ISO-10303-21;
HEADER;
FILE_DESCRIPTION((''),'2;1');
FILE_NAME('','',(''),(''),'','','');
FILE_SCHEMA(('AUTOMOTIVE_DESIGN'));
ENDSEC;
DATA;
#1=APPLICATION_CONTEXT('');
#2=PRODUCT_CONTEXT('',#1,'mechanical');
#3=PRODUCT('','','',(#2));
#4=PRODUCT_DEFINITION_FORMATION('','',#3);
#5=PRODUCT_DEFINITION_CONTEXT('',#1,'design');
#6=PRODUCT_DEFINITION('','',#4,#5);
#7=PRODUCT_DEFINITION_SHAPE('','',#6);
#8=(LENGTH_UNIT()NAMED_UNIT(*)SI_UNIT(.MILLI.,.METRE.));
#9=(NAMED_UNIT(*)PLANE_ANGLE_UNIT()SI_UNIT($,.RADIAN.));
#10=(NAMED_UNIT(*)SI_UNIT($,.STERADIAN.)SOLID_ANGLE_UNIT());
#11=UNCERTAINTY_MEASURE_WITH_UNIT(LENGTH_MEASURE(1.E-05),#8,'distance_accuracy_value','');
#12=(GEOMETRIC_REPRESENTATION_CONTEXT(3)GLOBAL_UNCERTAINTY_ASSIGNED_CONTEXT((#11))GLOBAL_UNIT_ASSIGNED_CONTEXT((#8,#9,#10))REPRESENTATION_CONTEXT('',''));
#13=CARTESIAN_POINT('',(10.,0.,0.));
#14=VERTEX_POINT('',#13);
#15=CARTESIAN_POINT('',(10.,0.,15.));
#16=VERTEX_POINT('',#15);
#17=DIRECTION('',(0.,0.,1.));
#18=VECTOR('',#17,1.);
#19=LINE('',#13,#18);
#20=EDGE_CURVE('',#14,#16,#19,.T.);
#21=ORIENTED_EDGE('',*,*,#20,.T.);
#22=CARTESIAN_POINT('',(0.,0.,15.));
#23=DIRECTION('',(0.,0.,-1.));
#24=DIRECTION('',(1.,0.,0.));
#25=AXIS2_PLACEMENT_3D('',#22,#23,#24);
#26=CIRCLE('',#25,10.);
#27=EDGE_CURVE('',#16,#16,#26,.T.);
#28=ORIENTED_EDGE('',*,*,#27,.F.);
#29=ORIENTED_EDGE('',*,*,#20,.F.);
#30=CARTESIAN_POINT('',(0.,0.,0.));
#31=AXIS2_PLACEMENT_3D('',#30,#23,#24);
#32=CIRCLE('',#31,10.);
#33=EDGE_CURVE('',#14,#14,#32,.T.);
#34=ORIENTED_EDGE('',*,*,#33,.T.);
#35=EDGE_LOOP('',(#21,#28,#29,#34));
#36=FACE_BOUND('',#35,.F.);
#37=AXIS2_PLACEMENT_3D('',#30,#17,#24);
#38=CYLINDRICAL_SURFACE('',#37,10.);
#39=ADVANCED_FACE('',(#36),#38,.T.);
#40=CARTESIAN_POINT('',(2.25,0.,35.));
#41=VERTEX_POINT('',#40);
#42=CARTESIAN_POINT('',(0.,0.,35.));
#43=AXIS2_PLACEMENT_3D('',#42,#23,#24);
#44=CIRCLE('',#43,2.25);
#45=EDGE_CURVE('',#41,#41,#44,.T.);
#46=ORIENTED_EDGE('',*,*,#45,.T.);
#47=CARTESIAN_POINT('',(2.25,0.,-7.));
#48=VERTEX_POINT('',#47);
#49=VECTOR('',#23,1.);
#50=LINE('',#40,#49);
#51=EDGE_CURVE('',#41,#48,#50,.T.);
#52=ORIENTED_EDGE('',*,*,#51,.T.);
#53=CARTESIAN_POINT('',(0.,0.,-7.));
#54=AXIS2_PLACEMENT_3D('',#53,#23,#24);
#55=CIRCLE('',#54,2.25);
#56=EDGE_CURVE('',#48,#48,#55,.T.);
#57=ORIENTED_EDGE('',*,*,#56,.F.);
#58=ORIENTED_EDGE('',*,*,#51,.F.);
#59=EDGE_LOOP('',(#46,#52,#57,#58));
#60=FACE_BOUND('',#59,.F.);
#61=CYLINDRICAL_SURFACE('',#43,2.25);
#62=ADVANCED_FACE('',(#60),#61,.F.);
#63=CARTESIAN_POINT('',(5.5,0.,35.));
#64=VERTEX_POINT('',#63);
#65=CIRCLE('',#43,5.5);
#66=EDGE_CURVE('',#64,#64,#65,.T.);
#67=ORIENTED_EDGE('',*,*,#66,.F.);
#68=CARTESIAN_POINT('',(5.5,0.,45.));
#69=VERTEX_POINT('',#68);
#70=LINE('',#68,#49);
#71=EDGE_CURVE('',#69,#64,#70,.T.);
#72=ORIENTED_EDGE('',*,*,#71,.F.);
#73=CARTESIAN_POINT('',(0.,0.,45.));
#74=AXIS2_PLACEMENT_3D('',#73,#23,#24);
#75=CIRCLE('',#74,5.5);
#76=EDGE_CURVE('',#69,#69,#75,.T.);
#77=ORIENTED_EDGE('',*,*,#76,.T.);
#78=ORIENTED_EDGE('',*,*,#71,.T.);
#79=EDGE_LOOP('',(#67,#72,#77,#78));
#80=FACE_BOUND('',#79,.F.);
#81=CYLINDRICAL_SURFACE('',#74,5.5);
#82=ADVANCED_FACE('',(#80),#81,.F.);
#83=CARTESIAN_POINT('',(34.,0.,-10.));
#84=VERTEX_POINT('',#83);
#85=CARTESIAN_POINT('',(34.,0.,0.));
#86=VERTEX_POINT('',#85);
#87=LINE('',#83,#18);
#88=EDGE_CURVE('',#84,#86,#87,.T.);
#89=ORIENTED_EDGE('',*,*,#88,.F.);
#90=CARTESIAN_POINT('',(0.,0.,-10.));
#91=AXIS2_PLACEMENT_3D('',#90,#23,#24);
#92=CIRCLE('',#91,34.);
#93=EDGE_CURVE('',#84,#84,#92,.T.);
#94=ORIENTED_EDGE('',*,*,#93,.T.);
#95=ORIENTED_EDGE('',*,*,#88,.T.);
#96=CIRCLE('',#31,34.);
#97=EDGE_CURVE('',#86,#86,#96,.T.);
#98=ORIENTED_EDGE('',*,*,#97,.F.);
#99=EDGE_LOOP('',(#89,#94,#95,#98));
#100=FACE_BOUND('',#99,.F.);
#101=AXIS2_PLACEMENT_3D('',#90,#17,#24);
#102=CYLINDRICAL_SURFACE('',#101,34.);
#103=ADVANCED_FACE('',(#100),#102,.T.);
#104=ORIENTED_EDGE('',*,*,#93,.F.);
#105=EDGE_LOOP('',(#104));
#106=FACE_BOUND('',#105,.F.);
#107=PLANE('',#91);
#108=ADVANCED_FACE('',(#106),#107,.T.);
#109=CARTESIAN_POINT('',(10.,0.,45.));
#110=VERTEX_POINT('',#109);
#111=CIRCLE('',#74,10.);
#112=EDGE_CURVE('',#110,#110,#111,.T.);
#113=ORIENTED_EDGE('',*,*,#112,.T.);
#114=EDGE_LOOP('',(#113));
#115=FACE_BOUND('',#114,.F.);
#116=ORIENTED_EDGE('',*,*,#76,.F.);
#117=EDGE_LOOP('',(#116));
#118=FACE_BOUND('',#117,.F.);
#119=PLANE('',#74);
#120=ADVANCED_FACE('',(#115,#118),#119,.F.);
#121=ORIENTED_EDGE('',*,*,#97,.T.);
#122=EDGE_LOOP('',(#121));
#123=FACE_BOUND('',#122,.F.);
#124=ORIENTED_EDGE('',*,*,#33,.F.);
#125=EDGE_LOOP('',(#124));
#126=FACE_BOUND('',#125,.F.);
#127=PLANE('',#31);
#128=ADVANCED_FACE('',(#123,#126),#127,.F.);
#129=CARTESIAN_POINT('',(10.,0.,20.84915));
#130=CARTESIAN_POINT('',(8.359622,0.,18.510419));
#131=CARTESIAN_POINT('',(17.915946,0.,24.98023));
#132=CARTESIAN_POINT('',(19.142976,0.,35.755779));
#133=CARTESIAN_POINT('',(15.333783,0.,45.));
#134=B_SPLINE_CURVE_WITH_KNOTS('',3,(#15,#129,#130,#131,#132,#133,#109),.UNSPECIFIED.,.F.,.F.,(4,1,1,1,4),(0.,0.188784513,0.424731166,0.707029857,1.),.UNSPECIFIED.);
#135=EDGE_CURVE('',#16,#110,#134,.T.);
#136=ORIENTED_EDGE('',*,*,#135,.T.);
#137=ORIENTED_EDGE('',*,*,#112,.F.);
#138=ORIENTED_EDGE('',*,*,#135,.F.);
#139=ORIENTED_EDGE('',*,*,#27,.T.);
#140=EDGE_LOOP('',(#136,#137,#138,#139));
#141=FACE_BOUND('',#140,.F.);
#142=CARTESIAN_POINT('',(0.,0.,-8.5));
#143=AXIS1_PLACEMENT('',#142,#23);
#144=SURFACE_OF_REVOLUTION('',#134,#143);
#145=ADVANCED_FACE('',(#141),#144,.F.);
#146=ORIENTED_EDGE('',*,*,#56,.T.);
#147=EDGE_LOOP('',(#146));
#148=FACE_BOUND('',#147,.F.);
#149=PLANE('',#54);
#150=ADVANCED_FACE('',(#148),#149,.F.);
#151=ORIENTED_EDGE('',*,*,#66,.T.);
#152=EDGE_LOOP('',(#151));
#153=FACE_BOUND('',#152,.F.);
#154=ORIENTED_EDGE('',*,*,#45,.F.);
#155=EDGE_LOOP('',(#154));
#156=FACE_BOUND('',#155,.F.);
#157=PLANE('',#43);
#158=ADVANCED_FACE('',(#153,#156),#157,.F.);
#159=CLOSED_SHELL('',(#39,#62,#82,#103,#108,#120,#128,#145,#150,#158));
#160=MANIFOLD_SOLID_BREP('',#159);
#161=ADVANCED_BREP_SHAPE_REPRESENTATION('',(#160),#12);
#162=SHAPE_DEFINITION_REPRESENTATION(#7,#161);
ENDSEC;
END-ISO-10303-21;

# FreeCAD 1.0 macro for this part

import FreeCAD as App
import Part
import Sketcher
from FreeCAD import Vector
Q = App.Units.Quantity

doc = App.newDocument("Part")
body = doc.addObject("PartDesign::Body", "Body")

# Sketch on XZ plane
sketch1 = doc.addObject("Sketcher::SketchObject", "Sketch")
body.addObject(sketch1)
sketch1.AttachmentSupport = (doc.XZ_Plane, [""])
sketch1.MapMode = "FlatFace"
sketch1.addGeometry([
    Part.LineSegment(Vector(0, -7, 0), Vector(0, -10, 0)),  # 0
    Part.LineSegment(Vector(0, -10, 0), Vector(34, -10, 0)),  # 1
    Part.LineSegment(Vector(34, -10, 0), Vector(34, 0, 0)),  # 2
    Part.LineSegment(Vector(34, 0, 0), Vector(10, 0, 0)),  # 3
    Part.LineSegment(Vector(10, 0, 0), Vector(10, 15, 0)),  # 4
    Part.BSplineCurve([Vector(10, 15, 0), Vector(10, 20.84915, 0), Vector(8.359622, 18.510419, 0), Vector(17.915946, 24.98023, 0), Vector(19.142976, 35.755779, 0), Vector(15.333783, 45, 0), Vector(10, 45, 0)], [4, 1, 1, 1, 4], [0, 0.188784513, 0.424731166, 0.707029857, 1], False, 3, [1, 1, 1, 1, 1, 1, 1], False),  # 5
    Part.LineSegment(Vector(10, 45, 0), Vector(5.5, 45, 0)),  # 6
    Part.LineSegment(Vector(5.5, 45, 0), Vector(5.5, 35, 0)),  # 7
    Part.LineSegment(Vector(5.5, 35, 0), Vector(2.25, 35, 0)),  # 8
    Part.LineSegment(Vector(2.25, 35, 0), Vector(2.25, -7, 0)),  # 9
    Part.LineSegment(Vector(2.25, -7, 0), Vector(0, -7, 0)),  # 10
], False)
sketch1.addConstraint([
    Sketcher.Constraint("Block", 5),
    Sketcher.Constraint("Coincident", 0, 2, 1, 1),
    Sketcher.Constraint("Coincident", 1, 2, 2, 1),
    Sketcher.Constraint("Coincident", 2, 2, 3, 1),
    Sketcher.Constraint("Coincident", 3, 2, 4, 1),
    Sketcher.Constraint("Coincident", 4, 2, 5, 1),
    Sketcher.Constraint("Coincident", 5, 2, 6, 1),
    Sketcher.Constraint("Coincident", 6, 2, 7, 1),
    Sketcher.Constraint("Coincident", 7, 2, 8, 1),
    Sketcher.Constraint("Coincident", 8, 2, 9, 1),
    Sketcher.Constraint("Coincident", 9, 2, 10, 1),
    Sketcher.Constraint("Coincident", 10, 2, 0, 1),
    Sketcher.Constraint("Vertical", 0),
    Sketcher.Constraint("Horizontal", 1),
    Sketcher.Constraint("Vertical", 2),
    Sketcher.Constraint("Horizontal", 3),
    Sketcher.Constraint("Vertical", 4),
    Sketcher.Constraint("Horizontal", 6),
    Sketcher.Constraint("Vertical", 7),
    Sketcher.Constraint("Horizontal", 8),
    Sketcher.Constraint("Vertical", 9),
    Sketcher.Constraint("Horizontal", 10),
    Sketcher.Constraint("PointOnObject", 0, 2, -2),
    Sketcher.Constraint("PointOnObject", 2, 2, -1),
    Sketcher.Constraint("Equal", 2, 7),
    Sketcher.Constraint("DistanceX", 1, 1, 1, 2, Q("34 mm")),
    Sketcher.Constraint("DistanceY", 0, 2, 0, 1, Q("3 mm")),
    Sketcher.Constraint("DistanceY", 2, 1, 2, 2, Q("10 mm")),
    Sketcher.Constraint("DistanceX", 6, 2, 6, 1, Q("4.5 mm")),
    Sketcher.Constraint("DistanceX", 8, 2, 8, 1, Q("3.25 mm")),
])
revolution = doc.addObject("PartDesign::Revolution", "Revolution")
body.addObject(revolution)
revolution.Profile = sketch1
revolution.ReferenceAxis = (sketch1, ["V_Axis"])
revolution.Angle = 360

doc.recompute()
